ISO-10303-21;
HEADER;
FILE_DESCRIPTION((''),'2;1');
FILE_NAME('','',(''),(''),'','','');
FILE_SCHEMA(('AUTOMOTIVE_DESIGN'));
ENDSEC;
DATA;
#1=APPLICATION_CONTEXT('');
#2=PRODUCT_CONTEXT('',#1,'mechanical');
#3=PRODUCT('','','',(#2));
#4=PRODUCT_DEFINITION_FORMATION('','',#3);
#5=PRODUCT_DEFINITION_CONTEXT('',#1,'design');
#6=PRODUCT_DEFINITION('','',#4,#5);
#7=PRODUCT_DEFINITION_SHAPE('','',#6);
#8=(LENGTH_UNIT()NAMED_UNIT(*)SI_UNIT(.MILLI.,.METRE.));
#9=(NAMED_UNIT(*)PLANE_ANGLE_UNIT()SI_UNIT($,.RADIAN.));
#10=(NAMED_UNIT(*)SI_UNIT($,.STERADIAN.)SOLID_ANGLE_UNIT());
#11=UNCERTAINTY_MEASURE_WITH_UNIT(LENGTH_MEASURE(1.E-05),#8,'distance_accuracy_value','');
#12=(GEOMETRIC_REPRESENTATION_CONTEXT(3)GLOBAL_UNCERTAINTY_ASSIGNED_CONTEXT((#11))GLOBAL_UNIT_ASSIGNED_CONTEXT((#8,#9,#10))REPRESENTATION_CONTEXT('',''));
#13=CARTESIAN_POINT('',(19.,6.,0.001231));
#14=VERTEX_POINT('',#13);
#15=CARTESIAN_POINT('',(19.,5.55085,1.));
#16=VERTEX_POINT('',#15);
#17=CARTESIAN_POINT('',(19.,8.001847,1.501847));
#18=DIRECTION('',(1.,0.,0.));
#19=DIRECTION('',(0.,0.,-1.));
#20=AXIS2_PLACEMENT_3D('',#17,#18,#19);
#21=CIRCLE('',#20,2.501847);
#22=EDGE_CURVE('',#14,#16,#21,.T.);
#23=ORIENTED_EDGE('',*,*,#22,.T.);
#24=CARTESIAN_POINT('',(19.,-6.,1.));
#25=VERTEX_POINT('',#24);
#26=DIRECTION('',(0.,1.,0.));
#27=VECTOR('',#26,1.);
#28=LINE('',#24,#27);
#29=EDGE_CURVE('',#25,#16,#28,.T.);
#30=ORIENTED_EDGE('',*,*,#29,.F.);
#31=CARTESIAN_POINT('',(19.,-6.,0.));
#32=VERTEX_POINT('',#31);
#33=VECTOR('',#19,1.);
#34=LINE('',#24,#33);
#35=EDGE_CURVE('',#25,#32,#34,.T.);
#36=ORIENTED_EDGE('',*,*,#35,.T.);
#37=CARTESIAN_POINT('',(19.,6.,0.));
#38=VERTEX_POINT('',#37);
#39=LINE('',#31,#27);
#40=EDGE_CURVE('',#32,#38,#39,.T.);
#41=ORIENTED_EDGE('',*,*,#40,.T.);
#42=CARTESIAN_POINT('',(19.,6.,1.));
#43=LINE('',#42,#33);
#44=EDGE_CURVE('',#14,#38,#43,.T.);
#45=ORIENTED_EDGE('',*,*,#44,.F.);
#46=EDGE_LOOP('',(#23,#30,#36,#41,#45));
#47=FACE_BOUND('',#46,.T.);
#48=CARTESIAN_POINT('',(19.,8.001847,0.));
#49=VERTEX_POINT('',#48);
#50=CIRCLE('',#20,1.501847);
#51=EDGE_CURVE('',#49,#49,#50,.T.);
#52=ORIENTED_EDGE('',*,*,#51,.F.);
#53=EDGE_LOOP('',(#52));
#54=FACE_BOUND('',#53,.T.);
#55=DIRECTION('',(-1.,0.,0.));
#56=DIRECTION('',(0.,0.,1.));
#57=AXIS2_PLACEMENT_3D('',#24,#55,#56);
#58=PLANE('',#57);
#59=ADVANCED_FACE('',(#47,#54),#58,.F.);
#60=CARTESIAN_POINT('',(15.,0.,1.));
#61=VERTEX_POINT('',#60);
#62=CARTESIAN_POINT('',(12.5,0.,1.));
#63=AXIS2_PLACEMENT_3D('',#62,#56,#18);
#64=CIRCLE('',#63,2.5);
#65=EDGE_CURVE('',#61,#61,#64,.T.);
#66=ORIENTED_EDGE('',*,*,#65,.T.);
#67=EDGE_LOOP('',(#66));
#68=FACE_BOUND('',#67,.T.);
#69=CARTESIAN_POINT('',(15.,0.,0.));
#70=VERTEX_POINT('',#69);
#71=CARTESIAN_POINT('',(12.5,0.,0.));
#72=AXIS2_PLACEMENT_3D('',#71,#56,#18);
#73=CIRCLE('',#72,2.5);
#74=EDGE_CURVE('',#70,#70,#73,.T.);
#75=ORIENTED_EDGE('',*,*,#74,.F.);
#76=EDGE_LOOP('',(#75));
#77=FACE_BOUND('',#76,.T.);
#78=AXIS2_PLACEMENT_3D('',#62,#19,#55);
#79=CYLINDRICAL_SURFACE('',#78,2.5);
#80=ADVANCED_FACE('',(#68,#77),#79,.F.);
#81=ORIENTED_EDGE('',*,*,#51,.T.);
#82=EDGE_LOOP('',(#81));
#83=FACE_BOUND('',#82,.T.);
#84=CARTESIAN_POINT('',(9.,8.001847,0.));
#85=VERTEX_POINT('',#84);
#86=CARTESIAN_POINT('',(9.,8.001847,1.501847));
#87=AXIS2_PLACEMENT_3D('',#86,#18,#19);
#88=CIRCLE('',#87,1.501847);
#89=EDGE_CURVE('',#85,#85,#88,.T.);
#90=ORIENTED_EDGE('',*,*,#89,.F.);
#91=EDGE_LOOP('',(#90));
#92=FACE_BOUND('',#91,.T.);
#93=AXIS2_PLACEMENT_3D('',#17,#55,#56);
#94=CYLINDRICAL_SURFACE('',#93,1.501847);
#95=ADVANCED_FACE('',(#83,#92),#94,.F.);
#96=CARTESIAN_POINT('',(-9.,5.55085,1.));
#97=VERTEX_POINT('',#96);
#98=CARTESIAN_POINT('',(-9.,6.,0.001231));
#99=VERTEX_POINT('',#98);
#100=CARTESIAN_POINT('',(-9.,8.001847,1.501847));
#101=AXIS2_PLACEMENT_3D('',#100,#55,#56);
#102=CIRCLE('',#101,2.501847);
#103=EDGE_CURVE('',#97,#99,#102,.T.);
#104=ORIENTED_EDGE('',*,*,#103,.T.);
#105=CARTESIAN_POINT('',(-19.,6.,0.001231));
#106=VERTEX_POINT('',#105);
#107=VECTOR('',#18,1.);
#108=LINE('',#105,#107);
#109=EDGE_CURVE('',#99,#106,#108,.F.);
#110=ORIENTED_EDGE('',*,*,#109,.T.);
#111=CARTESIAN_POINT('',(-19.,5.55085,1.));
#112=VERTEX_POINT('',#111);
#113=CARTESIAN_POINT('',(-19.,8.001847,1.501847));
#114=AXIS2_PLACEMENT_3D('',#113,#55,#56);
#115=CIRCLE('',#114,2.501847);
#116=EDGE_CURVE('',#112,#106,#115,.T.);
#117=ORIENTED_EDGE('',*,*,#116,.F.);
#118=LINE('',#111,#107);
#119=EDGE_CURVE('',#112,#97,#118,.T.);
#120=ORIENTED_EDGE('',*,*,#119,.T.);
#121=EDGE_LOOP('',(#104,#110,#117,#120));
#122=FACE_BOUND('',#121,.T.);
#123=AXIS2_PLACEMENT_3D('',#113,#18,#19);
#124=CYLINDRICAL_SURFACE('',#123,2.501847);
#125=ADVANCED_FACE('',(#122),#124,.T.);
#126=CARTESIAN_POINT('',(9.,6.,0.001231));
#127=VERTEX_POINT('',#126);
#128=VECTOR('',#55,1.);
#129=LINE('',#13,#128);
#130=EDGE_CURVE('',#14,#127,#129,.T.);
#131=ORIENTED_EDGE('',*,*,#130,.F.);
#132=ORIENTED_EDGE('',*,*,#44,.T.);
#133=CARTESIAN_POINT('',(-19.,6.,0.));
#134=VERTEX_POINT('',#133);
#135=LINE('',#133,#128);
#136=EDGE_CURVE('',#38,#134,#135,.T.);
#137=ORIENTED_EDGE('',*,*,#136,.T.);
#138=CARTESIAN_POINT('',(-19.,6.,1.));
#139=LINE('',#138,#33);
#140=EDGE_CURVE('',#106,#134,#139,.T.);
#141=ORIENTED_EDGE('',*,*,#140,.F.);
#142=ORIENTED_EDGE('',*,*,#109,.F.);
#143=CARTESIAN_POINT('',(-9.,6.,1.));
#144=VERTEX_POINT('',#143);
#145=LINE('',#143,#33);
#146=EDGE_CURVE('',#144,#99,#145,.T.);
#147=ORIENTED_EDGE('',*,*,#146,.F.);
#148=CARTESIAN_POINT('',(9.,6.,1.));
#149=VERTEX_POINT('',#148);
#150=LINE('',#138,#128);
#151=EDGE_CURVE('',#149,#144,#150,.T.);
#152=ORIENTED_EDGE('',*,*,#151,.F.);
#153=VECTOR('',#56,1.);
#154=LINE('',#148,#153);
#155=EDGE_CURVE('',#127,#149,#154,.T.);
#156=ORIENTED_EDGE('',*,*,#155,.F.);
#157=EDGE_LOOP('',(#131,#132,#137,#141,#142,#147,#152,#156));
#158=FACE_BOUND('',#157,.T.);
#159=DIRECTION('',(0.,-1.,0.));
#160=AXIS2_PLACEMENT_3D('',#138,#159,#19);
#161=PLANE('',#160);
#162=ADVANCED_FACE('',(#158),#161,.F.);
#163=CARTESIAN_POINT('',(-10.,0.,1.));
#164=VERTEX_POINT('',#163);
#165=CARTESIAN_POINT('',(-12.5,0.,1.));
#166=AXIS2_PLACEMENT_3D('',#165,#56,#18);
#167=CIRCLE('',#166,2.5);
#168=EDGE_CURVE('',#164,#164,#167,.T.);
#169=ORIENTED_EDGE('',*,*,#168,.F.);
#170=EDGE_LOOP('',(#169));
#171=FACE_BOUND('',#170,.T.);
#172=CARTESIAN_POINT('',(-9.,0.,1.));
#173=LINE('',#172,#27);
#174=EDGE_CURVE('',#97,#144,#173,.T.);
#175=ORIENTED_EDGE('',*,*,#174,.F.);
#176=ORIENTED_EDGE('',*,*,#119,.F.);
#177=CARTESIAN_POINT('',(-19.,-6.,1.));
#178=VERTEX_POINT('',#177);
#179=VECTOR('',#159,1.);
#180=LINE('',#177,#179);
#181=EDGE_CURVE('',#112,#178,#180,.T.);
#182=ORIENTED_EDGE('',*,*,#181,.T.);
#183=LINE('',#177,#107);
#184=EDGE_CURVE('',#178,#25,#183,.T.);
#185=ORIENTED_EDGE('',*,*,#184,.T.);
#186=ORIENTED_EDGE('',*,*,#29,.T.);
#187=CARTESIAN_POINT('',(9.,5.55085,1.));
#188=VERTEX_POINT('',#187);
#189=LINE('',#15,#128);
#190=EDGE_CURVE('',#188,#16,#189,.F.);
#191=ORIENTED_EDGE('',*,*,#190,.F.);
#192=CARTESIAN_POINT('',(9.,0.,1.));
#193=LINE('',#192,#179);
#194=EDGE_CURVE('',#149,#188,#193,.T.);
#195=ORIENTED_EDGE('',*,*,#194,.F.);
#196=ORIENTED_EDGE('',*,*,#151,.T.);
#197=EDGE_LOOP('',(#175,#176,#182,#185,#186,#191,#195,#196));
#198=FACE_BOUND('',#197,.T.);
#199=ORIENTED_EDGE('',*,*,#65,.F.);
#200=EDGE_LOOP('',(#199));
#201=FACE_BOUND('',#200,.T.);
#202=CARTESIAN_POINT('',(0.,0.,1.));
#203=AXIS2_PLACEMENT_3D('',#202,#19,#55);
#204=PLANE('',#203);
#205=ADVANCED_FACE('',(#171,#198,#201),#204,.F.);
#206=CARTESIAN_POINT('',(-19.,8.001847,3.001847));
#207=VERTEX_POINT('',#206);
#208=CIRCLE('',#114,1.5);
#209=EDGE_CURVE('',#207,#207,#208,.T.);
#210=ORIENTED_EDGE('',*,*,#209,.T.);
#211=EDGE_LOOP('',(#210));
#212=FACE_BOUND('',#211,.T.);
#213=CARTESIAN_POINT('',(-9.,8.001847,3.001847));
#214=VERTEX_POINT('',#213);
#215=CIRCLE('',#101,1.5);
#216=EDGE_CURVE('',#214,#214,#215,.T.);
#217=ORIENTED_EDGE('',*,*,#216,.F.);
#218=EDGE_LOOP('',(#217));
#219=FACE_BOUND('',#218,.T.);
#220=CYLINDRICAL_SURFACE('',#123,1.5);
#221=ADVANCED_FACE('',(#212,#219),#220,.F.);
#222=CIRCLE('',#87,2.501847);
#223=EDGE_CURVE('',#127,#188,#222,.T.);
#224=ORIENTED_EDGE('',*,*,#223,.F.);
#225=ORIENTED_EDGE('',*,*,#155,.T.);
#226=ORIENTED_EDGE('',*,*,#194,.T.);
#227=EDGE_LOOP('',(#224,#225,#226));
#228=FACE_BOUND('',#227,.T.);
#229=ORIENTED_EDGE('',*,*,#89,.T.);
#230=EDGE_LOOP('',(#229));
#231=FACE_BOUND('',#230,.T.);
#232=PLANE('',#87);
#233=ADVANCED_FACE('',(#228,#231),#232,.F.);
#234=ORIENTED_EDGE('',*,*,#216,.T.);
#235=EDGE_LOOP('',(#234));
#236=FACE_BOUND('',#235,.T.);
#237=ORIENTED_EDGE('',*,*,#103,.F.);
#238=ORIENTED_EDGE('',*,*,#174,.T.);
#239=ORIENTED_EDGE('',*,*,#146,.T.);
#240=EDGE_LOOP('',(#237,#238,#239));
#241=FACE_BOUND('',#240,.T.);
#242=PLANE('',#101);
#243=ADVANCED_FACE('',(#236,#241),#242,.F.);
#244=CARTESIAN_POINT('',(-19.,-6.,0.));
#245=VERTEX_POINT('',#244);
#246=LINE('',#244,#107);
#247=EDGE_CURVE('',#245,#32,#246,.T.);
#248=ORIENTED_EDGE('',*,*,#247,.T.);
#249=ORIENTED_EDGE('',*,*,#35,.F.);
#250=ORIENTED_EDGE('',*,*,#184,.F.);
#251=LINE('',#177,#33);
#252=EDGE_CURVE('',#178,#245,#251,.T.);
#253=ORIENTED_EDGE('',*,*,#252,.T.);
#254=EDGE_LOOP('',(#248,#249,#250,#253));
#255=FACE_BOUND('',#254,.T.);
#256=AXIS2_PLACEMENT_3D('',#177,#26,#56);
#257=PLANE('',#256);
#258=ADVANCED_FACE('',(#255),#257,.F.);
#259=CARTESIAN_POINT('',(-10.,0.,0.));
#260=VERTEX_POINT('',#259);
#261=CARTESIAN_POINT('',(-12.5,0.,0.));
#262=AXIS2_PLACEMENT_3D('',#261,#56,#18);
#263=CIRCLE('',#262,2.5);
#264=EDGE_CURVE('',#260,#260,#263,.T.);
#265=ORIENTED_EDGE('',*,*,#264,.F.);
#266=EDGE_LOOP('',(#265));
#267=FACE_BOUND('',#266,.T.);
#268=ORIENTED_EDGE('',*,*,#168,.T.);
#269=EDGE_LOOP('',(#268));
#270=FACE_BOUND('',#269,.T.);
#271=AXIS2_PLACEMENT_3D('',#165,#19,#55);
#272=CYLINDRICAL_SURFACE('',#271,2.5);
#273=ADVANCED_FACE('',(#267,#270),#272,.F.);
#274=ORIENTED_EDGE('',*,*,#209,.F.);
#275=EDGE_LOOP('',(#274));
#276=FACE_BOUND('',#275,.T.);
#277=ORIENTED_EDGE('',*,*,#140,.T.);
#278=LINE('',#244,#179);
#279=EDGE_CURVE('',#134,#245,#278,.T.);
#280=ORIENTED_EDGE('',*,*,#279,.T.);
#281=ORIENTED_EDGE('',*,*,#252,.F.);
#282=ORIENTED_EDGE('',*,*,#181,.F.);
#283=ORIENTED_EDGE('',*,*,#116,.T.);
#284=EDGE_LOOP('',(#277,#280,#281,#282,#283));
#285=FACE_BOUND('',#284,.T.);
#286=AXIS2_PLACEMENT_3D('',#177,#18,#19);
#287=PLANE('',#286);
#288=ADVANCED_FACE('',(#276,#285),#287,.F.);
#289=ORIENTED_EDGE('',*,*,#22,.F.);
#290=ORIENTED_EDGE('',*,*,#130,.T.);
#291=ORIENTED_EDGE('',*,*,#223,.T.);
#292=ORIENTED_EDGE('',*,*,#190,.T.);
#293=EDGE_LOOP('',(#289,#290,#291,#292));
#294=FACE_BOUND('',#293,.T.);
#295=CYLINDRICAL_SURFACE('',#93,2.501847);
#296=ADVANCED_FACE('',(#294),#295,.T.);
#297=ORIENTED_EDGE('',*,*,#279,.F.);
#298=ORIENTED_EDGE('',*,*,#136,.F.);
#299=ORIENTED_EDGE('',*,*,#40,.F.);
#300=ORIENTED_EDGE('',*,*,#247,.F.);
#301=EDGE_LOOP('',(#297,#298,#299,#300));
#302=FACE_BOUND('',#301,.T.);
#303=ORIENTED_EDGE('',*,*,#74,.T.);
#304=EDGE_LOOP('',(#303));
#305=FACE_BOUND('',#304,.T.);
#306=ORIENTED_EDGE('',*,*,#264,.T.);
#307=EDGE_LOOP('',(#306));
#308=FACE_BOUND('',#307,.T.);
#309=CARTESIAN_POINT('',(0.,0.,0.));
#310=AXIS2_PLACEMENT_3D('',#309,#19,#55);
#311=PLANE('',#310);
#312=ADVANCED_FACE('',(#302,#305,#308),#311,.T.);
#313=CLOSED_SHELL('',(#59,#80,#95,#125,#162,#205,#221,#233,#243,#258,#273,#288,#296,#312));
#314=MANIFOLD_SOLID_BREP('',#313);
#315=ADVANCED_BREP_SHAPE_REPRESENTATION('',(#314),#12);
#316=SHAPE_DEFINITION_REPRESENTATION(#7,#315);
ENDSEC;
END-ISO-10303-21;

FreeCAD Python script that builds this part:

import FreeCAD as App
import Part
import Sketcher
from FreeCAD import Vector


def add_polygon(sketch, points):
    """Adds a closed chain of lines whose ends are joined by coincident constraints."""
    first, n = sketch.GeometryCount, len(points)
    for a, b in zip(points, points[1:] + points[:1]):
        sketch.addGeometry(Part.LineSegment(App.Vector(*a, 0), App.Vector(*b, 0)), False)
    for i in range(n):
        sketch.addConstraint(Sketcher.Constraint("Coincident", first + i, 2, first + (i + 1) % n, 1))

doc = App.newDocument("Part")
params = doc.addObject("Spreadsheet::Sheet", "Params")
for row, (alias, value) in enumerate([
    ("sketch1_diameter", "5 mm"),
    ("sketch1_width", "38 mm"),
    ("sketch1_height", "12 mm"),
    ("pad1_length", "1 mm"),
    ("sketch2_diameter", "3 mm"),
    ("pad2_length", "10 mm"),
    ("pad3_length", "10 mm"),
], start=1):
    params.set(f"A{row}", alias)
    params.set(f"B{row}", "=" + value)
    params.setAlias(f"B{row}", alias)

body = doc.addObject("PartDesign::Body", "Body")

sketch1 = doc.addObject("Sketcher::SketchObject", "Sketch")
body.addObject(sketch1)
sketch1.AttachmentSupport = (doc.XY_Plane, [""])
sketch1.MapMode = "FlatFace"
add_polygon(sketch1, [(-19, 6), (-19, -6), (19, -6), (19, 6)])
sketch1.addGeometry(Part.Circle(Vector(-12.5, 0, 0), Vector(0, 0, 1), 2.5), False)
sketch1.addGeometry(Part.Circle(Vector(12.5, 0, 0), Vector(0, 0, 1), 2.5), False)
sketch1.addConstraint([
    Sketcher.Constraint("Vertical", 0),
    Sketcher.Constraint("Horizontal", 1),
    Sketcher.Constraint("Vertical", 2),
    Sketcher.Constraint("Horizontal", 3),
    Sketcher.Constraint("Equal", 4, 5),
    Sketcher.Constraint("Symmetric", 4, 3, 5, 3, -1, 1),
    Sketcher.Constraint("Symmetric", 0, 2, 2, 2, -1, 1),
    Sketcher.Constraint("PointOnObject", 4, 3, -1),
    Sketcher.Constraint("Diameter", 4, 5.0),
    Sketcher.Constraint("DistanceX", 1, 1, 1, 2, 38.0),
    Sketcher.Constraint("DistanceY", 0, 2, 0, 1, 12.0),
    Sketcher.Constraint("DistanceX", 4, 3, 5, 3, 25.0),
])
sketch1.setExpression("Constraints[12]", "Params.sketch1_diameter")
sketch1.setExpression("Constraints[13]", "Params.sketch1_width")
sketch1.setExpression("Constraints[14]", "Params.sketch1_height")
pad1 = doc.addObject("PartDesign::Pad", "Pad")
body.addObject(pad1)
pad1.Profile = sketch1
pad1.setExpression("Length", "Params.pad1_length")

sketch2 = doc.addObject("Sketcher::SketchObject", "Sketch001")
body.addObject(sketch2)
sketch2.AttachmentSupport = (doc.YZ_Plane, [""])
sketch2.MapMode = "FlatFace"
sketch2.AttachmentOffset = App.Placement(Vector(0, 0, -9), App.Rotation())
sketch2.addGeometry([
    Part.Circle(Vector(8, 1.5, 0), Vector(0, 0, 1), 2.5),
    Part.Circle(Vector(8, 1.5, 0), Vector(0, 0, 1), 1.5),
], False)
sketch2.addConstraint([
    Sketcher.Constraint("Coincident", 1, 3, 0, 3),
    Sketcher.Constraint("Diameter", 1, 3.0),
    Sketcher.Constraint("Diameter", 0, 5.003694),
    Sketcher.Constraint("DistanceX", -1, 1, 0, 3, 8.001847),
    Sketcher.Constraint("DistanceY", -1, 1, 0, 3, 1.501847),
])
sketch2.setExpression("Constraints[1]", "Params.sketch2_diameter")
pad2 = doc.addObject("PartDesign::Pad", "Pad001")
body.addObject(pad2)
pad2.Profile = sketch2
pad2.setExpression("Length", "Params.pad2_length")
pad2.Reversed = True

sketch3 = doc.addObject("Sketcher::SketchObject", "Sketch002")
body.addObject(sketch3)
sketch3.AttachmentSupport = (doc.YZ_Plane, [""])
sketch3.MapMode = "FlatFace"
sketch3.AttachmentOffset = App.Placement(Vector(0, 0, 19), App.Rotation())
sketch3.addGeometry([
    Part.Circle(Vector(8, 1.5, 0), Vector(0, 0, 1), 2.5),
    Part.Circle(Vector(8, 1.5, 0), Vector(0, 0, 1), 1.5),
], False)
sketch3.addConstraint([
    Sketcher.Constraint("Coincident", 1, 3, 0, 3),
    Sketcher.Constraint("Diameter", 0, 5.003694),
    Sketcher.Constraint("Diameter", 1, 3.003694),
    Sketcher.Constraint("DistanceX", -1, 1, 0, 3, 8.001847),
    Sketcher.Constraint("DistanceY", -1, 1, 0, 3, 1.501847),
])
pad3 = doc.addObject("PartDesign::Pad", "Pad002")
body.addObject(pad3)
pad3.Profile = sketch3
pad3.setExpression("Length", "Params.pad3_length")
pad3.Reversed = True

doc.recompute()
